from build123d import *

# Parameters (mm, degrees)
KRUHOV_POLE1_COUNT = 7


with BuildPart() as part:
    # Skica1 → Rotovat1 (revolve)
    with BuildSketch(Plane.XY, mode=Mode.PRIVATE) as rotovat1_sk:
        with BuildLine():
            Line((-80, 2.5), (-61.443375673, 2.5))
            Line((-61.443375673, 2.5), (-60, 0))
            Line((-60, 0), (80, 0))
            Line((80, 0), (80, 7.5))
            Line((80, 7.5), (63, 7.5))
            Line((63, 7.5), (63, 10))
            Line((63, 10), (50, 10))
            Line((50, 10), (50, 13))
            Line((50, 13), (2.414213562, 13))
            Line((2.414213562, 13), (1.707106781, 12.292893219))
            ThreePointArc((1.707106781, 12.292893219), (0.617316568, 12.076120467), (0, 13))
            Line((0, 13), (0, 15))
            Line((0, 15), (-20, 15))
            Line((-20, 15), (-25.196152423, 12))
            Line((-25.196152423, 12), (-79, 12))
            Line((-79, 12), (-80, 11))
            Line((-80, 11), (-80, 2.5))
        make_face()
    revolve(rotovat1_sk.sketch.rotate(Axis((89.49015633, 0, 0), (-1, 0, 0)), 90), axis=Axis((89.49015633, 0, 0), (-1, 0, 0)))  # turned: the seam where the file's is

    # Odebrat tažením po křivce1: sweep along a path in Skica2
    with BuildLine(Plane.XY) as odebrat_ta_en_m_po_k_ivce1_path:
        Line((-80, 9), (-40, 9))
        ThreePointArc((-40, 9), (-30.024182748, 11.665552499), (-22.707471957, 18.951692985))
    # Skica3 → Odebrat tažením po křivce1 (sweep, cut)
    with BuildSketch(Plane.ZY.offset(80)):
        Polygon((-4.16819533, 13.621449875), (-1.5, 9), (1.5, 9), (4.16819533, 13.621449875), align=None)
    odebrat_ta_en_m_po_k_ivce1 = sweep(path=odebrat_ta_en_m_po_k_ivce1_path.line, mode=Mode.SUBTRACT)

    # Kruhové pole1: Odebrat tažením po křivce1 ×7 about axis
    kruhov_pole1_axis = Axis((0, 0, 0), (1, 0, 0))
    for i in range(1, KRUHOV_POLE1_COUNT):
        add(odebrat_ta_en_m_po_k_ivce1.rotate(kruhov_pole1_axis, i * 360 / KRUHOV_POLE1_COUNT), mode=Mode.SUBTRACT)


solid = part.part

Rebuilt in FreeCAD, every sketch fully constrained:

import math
import FreeCAD as App
import Part
import Sketcher
from FreeCAD import Vector
Q = App.Units.Quantity

doc = App.newDocument("Part")
body = doc.addObject("PartDesign::Body", "Body")

sketch1 = body.newObject("Sketcher::SketchObject", "Sketch")
sketch1.AttachmentSupport = (doc.getObject("XY_Plane"), [""])
sketch1.MapMode = "FlatFace"
sketch1.addGeometry([
    Part.LineSegment(Vector(-80, 2.5, 0), Vector(-61.4, 2.5, 0)),
    Part.LineSegment(Vector(-61.4, 2.5, 0), Vector(-60, 0, 0)),
    Part.LineSegment(Vector(-60, 0, 0), Vector(80, 0, 0)),
    Part.LineSegment(Vector(80, 0, 0), Vector(80, 7.5, 0)),
    Part.LineSegment(Vector(80, 7.5, 0), Vector(63, 7.5, 0)),
    Part.LineSegment(Vector(63, 7.5, 0), Vector(63, 10, 0)),
    Part.LineSegment(Vector(63, 10, 0), Vector(50, 10, 0)),
    Part.LineSegment(Vector(50, 10, 0), Vector(50, 13, 0)),
    Part.LineSegment(Vector(50, 13, 0), Vector(2.4, 13, 0)),
    Part.LineSegment(Vector(2.4, 13, 0), Vector(1.7, 12.3, 0)),
    Part.ArcOfCircle(Part.Circle(Vector(1, 13, 0), Vector(0, 0, 1), 1), math.radians(180), math.radians(315)),
    Part.LineSegment(Vector(0, 13, 0), Vector(0, 15, 0)),
    Part.LineSegment(Vector(0, 15, 0), Vector(-20, 15, 0)),
    Part.LineSegment(Vector(-20, 15, 0), Vector(-25.2, 12, 0)),
    Part.LineSegment(Vector(-25.2, 12, 0), Vector(-79, 12, 0)),
    Part.LineSegment(Vector(-79, 12, 0), Vector(-80, 11, 0)),
    Part.LineSegment(Vector(-80, 11, 0), Vector(-80, 2.5, 0)),
], False)
sketch1.addConstraint([
    Sketcher.Constraint("Coincident", 0, 2, 1, 1),
    Sketcher.Constraint("Coincident", 1, 2, 2, 1),
    Sketcher.Constraint("Coincident", 2, 2, 3, 1),
    Sketcher.Constraint("Coincident", 3, 2, 4, 1),
    Sketcher.Constraint("Coincident", 4, 2, 5, 1),
    Sketcher.Constraint("Coincident", 5, 2, 6, 1),
    Sketcher.Constraint("Coincident", 6, 2, 7, 1),
    Sketcher.Constraint("Coincident", 7, 2, 8, 1),
    Sketcher.Constraint("Coincident", 8, 2, 9, 1),
    Sketcher.Constraint("Tangent", 9, 2, 10, 2),
    Sketcher.Constraint("Tangent", 10, 1, 11, 1),
    Sketcher.Constraint("Coincident", 11, 2, 12, 1),
    Sketcher.Constraint("Coincident", 12, 2, 13, 1),
    Sketcher.Constraint("Coincident", 13, 2, 14, 1),
    Sketcher.Constraint("Coincident", 14, 2, 15, 1),
    Sketcher.Constraint("Coincident", 15, 2, 16, 1),
    Sketcher.Constraint("Coincident", 16, 2, 0, 1),
    Sketcher.Constraint("Horizontal", 0),
    Sketcher.Constraint("Horizontal", 2),
    Sketcher.Constraint("Vertical", 3),
    Sketcher.Constraint("Horizontal", 4),
    Sketcher.Constraint("Vertical", 5),
    Sketcher.Constraint("Horizontal", 6),
    Sketcher.Constraint("Vertical", 7),
    Sketcher.Constraint("Horizontal", 8),
    Sketcher.Constraint("Vertical", 11),
    Sketcher.Constraint("Horizontal", 12),
    Sketcher.Constraint("Horizontal", 14),
    Sketcher.Constraint("Vertical", 16),
    Sketcher.Constraint("PointOnObject", 1, 2, -1),
    Sketcher.Constraint("PointOnObject", 10, 1, -2),
    Sketcher.Constraint("Perpendicular", 1, 13),
    Sketcher.Constraint("Parallel", 9, 15),
    Sketcher.Constraint("Horizontal", 10, 3, 7, 2),
    Sketcher.Constraint("Radius", 10, 1.0),
    Sketcher.Constraint("DistanceX", 2, 1, 2, 2, 140.0),
    Sketcher.Constraint("DistanceX", 4, 2, 4, 1, 17.0),
    Sketcher.Constraint("DistanceX", 6, 2, 6, 1, 13.0),
    Sketcher.Constraint("DistanceX", 12, 2, 12, 1, 20.0),
    Sketcher.Constraint("DistanceY", 7, 1, 7, 2, 3.0),
    Sketcher.Constraint("DistanceY", 11, 1, 11, 2, 2.0),
    Sketcher.Constraint("Angle", 1, Q("-60 deg")),
    Sketcher.Constraint("Angle", 9, Q("-135 deg")),
    Sketcher.Constraint("Distance", 13, 6.0),
    Sketcher.Constraint("DistanceY", 3, 1, 3, 2, 7.5),
    Sketcher.Constraint("DistanceY", 5, 1, 5, 2, 2.5),
    Sketcher.Constraint("DistanceY", 16, 2, 16, 1, 8.5),
    Sketcher.Constraint("DistanceX", 1, 2, -1, 1, 60.0),
    Sketcher.Constraint("DistanceX", 14, 2, -1, 1, 79.0),
    Sketcher.Constraint("DistanceX", 15, 2, -1, 1, 80.0),
])
revolution = body.newObject("PartDesign::Revolution", "Revolution")
revolution.Profile = sketch1
revolution.ReferenceAxis = (sketch1, ["H_Axis"])
revolution.Angle = 360

sketch2 = body.newObject("Sketcher::SketchObject", "Sketch001")
sketch2.AttachmentSupport = (doc.getObject("YZ_Plane"), [""])
sketch2.MapMode = "FlatFace"
sketch2.AttachmentOffset = App.Placement(Vector(0, 0, -80), App.Rotation())
sketch2.addGeometry([
    Part.LineSegment(Vector(13.6, -4.2, 0), Vector(9, -1.5, 0)),
    Part.LineSegment(Vector(9, -1.5, 0), Vector(9, 1.5, 0)),
    Part.LineSegment(Vector(9, 1.5, 0), Vector(13.6, 4.2, 0)),
    Part.LineSegment(Vector(13.6, 4.2, 0), Vector(13.6, -4.2, 0)),
], False)
sketch2.addConstraint([
    Sketcher.Constraint("Coincident", 0, 2, 1, 1),
    Sketcher.Constraint("Coincident", 1, 2, 2, 1),
    Sketcher.Constraint("Coincident", 2, 2, 3, 1),
    Sketcher.Constraint("Coincident", 3, 2, 0, 1),
    Sketcher.Constraint("Vertical", 1),
    Sketcher.Constraint("Vertical", 3),
    Sketcher.Constraint("Equal", 0, 2),
    Sketcher.Constraint("DistanceY", 1, 1, 1, 2, 3.0),
    Sketcher.Constraint("Angle", 0, Q("150 deg")),
    Sketcher.Constraint("DistanceX", -1, 1, 0, 2, 9.0),
    Sketcher.Constraint("DistanceY", 0, 2, -1, 1, 1.5),
    Sketcher.Constraint("DistanceY", 3, 2, 3, 1, 8.336391),
])

sketch3 = body.newObject("Sketcher::SketchObject", "Sketch002")
sketch3.AttachmentSupport = (doc.getObject("XY_Plane"), [""])
sketch3.MapMode = "FlatFace"
sketch3.addGeometry([
    Part.LineSegment(Vector(-80, 9, 0), Vector(-40, 9, 0)),
    Part.ArcOfCircle(Part.Circle(Vector(-40, 29, 0), Vector(0, 0, 1), 20), math.radians(-90), math.radians(-30)),
], False)
sketch3.addConstraint([
    Sketcher.Constraint("Tangent", 0, 2, 1, 1),
    Sketcher.Constraint("Horizontal", 0),
    Sketcher.Constraint("Radius", 1, 20.0),
    Sketcher.Constraint("DistanceX", 0, 1, 0, 2, 40.0),
    Sketcher.Constraint("DistanceX", 1, 3, -1, 1, 40.0),
    Sketcher.Constraint("DistanceY", -1, 1, 1, 3, 29.0),
    Sketcher.Constraint("DistanceX", 1, 2, -1, 1, 22.707472),
])
doc.recompute()

subtractivepipe = body.newObject("PartDesign::SubtractivePipe", "SubtractivePipe")
subtractivepipe.Profile = sketch2
subtractivepipe.Spine = (sketch3, ["Edge1", "Edge2"])
doc.recompute()

polarpattern = body.newObject("PartDesign::PolarPattern", "PolarPattern")
polarpattern.Originals = [subtractivepipe]
polarpattern.Axis = (doc.getObject("X_Axis"), [""])
polarpattern.Angle = 360
polarpattern.Occurrences = 7
body.Tip = polarpattern

doc.recompute()
